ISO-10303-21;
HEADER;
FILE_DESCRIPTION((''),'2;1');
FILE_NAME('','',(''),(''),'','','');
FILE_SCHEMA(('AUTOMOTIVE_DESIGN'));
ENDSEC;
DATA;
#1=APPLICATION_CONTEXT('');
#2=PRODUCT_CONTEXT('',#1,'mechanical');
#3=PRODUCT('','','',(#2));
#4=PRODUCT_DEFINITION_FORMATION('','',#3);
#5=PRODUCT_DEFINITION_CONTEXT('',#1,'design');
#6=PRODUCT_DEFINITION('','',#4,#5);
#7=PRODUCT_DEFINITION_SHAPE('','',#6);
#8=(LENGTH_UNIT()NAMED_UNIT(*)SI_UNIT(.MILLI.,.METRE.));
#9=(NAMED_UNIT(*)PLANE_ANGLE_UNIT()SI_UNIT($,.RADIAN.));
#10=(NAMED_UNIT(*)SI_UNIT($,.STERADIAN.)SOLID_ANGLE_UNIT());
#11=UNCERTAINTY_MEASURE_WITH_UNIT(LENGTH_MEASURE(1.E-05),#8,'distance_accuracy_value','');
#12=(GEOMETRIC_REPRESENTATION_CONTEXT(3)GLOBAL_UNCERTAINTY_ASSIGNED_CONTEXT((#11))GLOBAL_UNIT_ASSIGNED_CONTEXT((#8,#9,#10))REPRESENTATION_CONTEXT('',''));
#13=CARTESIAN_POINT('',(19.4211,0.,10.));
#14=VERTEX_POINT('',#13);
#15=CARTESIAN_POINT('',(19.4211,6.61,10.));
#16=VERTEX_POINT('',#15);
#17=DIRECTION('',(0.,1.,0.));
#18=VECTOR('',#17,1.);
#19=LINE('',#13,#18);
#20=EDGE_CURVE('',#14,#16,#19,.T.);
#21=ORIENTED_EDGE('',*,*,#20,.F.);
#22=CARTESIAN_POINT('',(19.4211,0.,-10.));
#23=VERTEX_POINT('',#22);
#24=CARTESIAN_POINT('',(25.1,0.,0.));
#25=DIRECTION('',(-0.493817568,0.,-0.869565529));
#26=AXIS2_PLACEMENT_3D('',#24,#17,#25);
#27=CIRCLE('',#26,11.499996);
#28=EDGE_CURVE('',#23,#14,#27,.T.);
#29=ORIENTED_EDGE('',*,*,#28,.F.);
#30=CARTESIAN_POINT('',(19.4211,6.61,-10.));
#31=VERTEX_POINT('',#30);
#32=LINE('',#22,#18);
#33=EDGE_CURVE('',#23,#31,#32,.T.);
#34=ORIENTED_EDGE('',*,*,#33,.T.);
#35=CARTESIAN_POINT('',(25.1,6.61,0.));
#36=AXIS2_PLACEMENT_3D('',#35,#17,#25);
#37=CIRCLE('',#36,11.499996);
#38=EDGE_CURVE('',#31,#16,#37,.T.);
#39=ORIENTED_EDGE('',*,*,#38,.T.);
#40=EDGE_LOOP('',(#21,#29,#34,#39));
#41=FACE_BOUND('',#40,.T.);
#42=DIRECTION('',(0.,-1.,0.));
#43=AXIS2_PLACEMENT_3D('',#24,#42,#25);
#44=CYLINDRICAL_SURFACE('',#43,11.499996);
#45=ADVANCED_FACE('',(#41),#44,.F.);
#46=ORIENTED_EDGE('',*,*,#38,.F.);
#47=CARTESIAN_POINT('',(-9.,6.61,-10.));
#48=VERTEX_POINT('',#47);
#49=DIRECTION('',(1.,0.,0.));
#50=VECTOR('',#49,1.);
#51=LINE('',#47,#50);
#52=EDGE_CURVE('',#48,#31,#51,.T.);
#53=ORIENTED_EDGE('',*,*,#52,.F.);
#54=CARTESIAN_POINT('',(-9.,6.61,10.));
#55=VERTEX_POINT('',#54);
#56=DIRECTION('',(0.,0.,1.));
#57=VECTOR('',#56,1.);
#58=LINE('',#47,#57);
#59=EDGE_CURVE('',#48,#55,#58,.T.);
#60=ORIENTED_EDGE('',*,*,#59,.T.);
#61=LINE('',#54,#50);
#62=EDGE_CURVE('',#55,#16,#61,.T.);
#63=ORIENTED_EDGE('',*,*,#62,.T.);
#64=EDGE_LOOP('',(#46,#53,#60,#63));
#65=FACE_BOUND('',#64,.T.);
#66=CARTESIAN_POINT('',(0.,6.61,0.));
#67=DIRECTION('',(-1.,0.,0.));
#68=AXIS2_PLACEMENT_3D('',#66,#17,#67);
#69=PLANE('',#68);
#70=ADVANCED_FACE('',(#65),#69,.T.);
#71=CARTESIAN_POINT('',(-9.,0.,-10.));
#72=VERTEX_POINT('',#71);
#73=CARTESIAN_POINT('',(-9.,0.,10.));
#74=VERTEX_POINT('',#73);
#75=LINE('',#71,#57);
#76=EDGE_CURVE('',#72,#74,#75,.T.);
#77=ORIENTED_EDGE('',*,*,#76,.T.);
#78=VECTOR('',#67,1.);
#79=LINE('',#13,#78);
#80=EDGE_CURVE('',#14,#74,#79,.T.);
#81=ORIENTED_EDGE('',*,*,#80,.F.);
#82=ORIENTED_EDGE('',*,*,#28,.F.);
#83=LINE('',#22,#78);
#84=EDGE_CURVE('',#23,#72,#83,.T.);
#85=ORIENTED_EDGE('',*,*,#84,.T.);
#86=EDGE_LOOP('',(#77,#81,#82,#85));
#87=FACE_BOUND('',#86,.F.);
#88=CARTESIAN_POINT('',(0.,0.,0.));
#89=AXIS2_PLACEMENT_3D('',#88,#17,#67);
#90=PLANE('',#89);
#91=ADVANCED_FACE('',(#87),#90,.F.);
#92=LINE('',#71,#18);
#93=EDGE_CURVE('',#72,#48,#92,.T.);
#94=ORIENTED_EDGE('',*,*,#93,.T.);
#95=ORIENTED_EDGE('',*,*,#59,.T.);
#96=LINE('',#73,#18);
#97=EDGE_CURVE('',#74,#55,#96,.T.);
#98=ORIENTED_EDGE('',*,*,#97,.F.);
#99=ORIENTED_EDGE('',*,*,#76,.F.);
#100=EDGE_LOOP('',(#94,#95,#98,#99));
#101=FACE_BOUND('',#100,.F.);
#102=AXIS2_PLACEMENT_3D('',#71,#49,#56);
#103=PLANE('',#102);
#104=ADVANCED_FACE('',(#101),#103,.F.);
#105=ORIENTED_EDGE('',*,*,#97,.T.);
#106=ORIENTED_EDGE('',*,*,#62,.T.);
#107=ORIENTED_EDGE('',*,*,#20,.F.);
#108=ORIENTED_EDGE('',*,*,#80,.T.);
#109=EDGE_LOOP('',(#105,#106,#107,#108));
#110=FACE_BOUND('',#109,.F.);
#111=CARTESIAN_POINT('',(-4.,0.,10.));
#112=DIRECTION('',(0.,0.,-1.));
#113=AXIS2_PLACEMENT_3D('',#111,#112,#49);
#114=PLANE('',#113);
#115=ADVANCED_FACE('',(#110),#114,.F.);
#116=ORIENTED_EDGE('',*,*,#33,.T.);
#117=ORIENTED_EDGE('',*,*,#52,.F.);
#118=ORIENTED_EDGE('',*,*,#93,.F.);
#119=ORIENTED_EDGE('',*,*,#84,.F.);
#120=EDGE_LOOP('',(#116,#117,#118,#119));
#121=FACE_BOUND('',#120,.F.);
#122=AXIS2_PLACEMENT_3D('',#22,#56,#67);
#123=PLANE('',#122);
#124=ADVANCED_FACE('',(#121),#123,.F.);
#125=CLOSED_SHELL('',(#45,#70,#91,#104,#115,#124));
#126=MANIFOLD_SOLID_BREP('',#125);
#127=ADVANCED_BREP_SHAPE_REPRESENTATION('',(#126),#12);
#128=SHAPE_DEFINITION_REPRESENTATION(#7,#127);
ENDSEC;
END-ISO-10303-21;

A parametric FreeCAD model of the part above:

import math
import FreeCAD as App
import Part
import Sketcher

V = App.Vector

doc = App.newDocument("Part")
params = doc.addObject("Spreadsheet::Sheet", "Params")
for row, (alias, value) in enumerate([
    ("sketch1_radius", "11.5 mm"),
    ("sketch1_height", "20 mm"),
    ("pad1_length", "6.61 mm"),
], start=1):
    params.set(f"A{row}", alias)
    params.set(f"B{row}", "=" + value)
    params.setAlias(f"B{row}", alias)

body = doc.addObject("PartDesign::Body", "Body")

# Sketch on XZ plane
sketch1 = body.newObject("Sketcher::SketchObject", "Sketch")
sketch1.AttachmentSupport = (doc.getObject("XZ_Plane"), [""])
sketch1.MapMode = "FlatFace"
sketch1.addGeometry([
    Part.LineSegment(V(19.4211, -10, 0), V(-9, -10, 0)),
    Part.LineSegment(V(-9, -10, 0), V(-9, 10, 0)),
    Part.LineSegment(V(-9, 10, 0), V(19.4211, 10, 0)),
    Part.ArcOfCircle(Part.Circle(V(25.1, 0, 0), V(0, 0, 1), 11.499996), math.radians(119.59181), math.radians(240.40819)),
], False)
sketch1.addConstraint([
    Sketcher.Constraint("Coincident", 0, 2, 1, 1),
    Sketcher.Constraint("Coincident", 1, 2, 2, 1),
    Sketcher.Constraint("Coincident", 2, 2, 3, 1),
    Sketcher.Constraint("Coincident", 3, 2, 0, 1),
    Sketcher.Constraint("Horizontal", 0),
    Sketcher.Constraint("Vertical", 1),
    Sketcher.Constraint("Horizontal", 2),
    Sketcher.Constraint("Symmetric", 2, 2, 3, 2, -1),
    Sketcher.Constraint("Radius", 3, 11.5),
    Sketcher.Constraint("DistanceY", 1, 1, 1, 2, 20.0),
    Sketcher.Constraint("DistanceX", 0, 2, -1, 1, 9.0),
    Sketcher.Constraint("DistanceX", -1, 1, 3, 3, 25.1),
])
sketch1.setExpression("Constraints[8]", "Params.sketch1_radius")
sketch1.setExpression("Constraints[9]", "Params.sketch1_height")
pad1 = body.newObject("PartDesign::Pad", "Pad")
pad1.Profile = sketch1
pad1.setExpression("Length", "Params.pad1_length")
pad1.Reversed = True

doc.recompute()
